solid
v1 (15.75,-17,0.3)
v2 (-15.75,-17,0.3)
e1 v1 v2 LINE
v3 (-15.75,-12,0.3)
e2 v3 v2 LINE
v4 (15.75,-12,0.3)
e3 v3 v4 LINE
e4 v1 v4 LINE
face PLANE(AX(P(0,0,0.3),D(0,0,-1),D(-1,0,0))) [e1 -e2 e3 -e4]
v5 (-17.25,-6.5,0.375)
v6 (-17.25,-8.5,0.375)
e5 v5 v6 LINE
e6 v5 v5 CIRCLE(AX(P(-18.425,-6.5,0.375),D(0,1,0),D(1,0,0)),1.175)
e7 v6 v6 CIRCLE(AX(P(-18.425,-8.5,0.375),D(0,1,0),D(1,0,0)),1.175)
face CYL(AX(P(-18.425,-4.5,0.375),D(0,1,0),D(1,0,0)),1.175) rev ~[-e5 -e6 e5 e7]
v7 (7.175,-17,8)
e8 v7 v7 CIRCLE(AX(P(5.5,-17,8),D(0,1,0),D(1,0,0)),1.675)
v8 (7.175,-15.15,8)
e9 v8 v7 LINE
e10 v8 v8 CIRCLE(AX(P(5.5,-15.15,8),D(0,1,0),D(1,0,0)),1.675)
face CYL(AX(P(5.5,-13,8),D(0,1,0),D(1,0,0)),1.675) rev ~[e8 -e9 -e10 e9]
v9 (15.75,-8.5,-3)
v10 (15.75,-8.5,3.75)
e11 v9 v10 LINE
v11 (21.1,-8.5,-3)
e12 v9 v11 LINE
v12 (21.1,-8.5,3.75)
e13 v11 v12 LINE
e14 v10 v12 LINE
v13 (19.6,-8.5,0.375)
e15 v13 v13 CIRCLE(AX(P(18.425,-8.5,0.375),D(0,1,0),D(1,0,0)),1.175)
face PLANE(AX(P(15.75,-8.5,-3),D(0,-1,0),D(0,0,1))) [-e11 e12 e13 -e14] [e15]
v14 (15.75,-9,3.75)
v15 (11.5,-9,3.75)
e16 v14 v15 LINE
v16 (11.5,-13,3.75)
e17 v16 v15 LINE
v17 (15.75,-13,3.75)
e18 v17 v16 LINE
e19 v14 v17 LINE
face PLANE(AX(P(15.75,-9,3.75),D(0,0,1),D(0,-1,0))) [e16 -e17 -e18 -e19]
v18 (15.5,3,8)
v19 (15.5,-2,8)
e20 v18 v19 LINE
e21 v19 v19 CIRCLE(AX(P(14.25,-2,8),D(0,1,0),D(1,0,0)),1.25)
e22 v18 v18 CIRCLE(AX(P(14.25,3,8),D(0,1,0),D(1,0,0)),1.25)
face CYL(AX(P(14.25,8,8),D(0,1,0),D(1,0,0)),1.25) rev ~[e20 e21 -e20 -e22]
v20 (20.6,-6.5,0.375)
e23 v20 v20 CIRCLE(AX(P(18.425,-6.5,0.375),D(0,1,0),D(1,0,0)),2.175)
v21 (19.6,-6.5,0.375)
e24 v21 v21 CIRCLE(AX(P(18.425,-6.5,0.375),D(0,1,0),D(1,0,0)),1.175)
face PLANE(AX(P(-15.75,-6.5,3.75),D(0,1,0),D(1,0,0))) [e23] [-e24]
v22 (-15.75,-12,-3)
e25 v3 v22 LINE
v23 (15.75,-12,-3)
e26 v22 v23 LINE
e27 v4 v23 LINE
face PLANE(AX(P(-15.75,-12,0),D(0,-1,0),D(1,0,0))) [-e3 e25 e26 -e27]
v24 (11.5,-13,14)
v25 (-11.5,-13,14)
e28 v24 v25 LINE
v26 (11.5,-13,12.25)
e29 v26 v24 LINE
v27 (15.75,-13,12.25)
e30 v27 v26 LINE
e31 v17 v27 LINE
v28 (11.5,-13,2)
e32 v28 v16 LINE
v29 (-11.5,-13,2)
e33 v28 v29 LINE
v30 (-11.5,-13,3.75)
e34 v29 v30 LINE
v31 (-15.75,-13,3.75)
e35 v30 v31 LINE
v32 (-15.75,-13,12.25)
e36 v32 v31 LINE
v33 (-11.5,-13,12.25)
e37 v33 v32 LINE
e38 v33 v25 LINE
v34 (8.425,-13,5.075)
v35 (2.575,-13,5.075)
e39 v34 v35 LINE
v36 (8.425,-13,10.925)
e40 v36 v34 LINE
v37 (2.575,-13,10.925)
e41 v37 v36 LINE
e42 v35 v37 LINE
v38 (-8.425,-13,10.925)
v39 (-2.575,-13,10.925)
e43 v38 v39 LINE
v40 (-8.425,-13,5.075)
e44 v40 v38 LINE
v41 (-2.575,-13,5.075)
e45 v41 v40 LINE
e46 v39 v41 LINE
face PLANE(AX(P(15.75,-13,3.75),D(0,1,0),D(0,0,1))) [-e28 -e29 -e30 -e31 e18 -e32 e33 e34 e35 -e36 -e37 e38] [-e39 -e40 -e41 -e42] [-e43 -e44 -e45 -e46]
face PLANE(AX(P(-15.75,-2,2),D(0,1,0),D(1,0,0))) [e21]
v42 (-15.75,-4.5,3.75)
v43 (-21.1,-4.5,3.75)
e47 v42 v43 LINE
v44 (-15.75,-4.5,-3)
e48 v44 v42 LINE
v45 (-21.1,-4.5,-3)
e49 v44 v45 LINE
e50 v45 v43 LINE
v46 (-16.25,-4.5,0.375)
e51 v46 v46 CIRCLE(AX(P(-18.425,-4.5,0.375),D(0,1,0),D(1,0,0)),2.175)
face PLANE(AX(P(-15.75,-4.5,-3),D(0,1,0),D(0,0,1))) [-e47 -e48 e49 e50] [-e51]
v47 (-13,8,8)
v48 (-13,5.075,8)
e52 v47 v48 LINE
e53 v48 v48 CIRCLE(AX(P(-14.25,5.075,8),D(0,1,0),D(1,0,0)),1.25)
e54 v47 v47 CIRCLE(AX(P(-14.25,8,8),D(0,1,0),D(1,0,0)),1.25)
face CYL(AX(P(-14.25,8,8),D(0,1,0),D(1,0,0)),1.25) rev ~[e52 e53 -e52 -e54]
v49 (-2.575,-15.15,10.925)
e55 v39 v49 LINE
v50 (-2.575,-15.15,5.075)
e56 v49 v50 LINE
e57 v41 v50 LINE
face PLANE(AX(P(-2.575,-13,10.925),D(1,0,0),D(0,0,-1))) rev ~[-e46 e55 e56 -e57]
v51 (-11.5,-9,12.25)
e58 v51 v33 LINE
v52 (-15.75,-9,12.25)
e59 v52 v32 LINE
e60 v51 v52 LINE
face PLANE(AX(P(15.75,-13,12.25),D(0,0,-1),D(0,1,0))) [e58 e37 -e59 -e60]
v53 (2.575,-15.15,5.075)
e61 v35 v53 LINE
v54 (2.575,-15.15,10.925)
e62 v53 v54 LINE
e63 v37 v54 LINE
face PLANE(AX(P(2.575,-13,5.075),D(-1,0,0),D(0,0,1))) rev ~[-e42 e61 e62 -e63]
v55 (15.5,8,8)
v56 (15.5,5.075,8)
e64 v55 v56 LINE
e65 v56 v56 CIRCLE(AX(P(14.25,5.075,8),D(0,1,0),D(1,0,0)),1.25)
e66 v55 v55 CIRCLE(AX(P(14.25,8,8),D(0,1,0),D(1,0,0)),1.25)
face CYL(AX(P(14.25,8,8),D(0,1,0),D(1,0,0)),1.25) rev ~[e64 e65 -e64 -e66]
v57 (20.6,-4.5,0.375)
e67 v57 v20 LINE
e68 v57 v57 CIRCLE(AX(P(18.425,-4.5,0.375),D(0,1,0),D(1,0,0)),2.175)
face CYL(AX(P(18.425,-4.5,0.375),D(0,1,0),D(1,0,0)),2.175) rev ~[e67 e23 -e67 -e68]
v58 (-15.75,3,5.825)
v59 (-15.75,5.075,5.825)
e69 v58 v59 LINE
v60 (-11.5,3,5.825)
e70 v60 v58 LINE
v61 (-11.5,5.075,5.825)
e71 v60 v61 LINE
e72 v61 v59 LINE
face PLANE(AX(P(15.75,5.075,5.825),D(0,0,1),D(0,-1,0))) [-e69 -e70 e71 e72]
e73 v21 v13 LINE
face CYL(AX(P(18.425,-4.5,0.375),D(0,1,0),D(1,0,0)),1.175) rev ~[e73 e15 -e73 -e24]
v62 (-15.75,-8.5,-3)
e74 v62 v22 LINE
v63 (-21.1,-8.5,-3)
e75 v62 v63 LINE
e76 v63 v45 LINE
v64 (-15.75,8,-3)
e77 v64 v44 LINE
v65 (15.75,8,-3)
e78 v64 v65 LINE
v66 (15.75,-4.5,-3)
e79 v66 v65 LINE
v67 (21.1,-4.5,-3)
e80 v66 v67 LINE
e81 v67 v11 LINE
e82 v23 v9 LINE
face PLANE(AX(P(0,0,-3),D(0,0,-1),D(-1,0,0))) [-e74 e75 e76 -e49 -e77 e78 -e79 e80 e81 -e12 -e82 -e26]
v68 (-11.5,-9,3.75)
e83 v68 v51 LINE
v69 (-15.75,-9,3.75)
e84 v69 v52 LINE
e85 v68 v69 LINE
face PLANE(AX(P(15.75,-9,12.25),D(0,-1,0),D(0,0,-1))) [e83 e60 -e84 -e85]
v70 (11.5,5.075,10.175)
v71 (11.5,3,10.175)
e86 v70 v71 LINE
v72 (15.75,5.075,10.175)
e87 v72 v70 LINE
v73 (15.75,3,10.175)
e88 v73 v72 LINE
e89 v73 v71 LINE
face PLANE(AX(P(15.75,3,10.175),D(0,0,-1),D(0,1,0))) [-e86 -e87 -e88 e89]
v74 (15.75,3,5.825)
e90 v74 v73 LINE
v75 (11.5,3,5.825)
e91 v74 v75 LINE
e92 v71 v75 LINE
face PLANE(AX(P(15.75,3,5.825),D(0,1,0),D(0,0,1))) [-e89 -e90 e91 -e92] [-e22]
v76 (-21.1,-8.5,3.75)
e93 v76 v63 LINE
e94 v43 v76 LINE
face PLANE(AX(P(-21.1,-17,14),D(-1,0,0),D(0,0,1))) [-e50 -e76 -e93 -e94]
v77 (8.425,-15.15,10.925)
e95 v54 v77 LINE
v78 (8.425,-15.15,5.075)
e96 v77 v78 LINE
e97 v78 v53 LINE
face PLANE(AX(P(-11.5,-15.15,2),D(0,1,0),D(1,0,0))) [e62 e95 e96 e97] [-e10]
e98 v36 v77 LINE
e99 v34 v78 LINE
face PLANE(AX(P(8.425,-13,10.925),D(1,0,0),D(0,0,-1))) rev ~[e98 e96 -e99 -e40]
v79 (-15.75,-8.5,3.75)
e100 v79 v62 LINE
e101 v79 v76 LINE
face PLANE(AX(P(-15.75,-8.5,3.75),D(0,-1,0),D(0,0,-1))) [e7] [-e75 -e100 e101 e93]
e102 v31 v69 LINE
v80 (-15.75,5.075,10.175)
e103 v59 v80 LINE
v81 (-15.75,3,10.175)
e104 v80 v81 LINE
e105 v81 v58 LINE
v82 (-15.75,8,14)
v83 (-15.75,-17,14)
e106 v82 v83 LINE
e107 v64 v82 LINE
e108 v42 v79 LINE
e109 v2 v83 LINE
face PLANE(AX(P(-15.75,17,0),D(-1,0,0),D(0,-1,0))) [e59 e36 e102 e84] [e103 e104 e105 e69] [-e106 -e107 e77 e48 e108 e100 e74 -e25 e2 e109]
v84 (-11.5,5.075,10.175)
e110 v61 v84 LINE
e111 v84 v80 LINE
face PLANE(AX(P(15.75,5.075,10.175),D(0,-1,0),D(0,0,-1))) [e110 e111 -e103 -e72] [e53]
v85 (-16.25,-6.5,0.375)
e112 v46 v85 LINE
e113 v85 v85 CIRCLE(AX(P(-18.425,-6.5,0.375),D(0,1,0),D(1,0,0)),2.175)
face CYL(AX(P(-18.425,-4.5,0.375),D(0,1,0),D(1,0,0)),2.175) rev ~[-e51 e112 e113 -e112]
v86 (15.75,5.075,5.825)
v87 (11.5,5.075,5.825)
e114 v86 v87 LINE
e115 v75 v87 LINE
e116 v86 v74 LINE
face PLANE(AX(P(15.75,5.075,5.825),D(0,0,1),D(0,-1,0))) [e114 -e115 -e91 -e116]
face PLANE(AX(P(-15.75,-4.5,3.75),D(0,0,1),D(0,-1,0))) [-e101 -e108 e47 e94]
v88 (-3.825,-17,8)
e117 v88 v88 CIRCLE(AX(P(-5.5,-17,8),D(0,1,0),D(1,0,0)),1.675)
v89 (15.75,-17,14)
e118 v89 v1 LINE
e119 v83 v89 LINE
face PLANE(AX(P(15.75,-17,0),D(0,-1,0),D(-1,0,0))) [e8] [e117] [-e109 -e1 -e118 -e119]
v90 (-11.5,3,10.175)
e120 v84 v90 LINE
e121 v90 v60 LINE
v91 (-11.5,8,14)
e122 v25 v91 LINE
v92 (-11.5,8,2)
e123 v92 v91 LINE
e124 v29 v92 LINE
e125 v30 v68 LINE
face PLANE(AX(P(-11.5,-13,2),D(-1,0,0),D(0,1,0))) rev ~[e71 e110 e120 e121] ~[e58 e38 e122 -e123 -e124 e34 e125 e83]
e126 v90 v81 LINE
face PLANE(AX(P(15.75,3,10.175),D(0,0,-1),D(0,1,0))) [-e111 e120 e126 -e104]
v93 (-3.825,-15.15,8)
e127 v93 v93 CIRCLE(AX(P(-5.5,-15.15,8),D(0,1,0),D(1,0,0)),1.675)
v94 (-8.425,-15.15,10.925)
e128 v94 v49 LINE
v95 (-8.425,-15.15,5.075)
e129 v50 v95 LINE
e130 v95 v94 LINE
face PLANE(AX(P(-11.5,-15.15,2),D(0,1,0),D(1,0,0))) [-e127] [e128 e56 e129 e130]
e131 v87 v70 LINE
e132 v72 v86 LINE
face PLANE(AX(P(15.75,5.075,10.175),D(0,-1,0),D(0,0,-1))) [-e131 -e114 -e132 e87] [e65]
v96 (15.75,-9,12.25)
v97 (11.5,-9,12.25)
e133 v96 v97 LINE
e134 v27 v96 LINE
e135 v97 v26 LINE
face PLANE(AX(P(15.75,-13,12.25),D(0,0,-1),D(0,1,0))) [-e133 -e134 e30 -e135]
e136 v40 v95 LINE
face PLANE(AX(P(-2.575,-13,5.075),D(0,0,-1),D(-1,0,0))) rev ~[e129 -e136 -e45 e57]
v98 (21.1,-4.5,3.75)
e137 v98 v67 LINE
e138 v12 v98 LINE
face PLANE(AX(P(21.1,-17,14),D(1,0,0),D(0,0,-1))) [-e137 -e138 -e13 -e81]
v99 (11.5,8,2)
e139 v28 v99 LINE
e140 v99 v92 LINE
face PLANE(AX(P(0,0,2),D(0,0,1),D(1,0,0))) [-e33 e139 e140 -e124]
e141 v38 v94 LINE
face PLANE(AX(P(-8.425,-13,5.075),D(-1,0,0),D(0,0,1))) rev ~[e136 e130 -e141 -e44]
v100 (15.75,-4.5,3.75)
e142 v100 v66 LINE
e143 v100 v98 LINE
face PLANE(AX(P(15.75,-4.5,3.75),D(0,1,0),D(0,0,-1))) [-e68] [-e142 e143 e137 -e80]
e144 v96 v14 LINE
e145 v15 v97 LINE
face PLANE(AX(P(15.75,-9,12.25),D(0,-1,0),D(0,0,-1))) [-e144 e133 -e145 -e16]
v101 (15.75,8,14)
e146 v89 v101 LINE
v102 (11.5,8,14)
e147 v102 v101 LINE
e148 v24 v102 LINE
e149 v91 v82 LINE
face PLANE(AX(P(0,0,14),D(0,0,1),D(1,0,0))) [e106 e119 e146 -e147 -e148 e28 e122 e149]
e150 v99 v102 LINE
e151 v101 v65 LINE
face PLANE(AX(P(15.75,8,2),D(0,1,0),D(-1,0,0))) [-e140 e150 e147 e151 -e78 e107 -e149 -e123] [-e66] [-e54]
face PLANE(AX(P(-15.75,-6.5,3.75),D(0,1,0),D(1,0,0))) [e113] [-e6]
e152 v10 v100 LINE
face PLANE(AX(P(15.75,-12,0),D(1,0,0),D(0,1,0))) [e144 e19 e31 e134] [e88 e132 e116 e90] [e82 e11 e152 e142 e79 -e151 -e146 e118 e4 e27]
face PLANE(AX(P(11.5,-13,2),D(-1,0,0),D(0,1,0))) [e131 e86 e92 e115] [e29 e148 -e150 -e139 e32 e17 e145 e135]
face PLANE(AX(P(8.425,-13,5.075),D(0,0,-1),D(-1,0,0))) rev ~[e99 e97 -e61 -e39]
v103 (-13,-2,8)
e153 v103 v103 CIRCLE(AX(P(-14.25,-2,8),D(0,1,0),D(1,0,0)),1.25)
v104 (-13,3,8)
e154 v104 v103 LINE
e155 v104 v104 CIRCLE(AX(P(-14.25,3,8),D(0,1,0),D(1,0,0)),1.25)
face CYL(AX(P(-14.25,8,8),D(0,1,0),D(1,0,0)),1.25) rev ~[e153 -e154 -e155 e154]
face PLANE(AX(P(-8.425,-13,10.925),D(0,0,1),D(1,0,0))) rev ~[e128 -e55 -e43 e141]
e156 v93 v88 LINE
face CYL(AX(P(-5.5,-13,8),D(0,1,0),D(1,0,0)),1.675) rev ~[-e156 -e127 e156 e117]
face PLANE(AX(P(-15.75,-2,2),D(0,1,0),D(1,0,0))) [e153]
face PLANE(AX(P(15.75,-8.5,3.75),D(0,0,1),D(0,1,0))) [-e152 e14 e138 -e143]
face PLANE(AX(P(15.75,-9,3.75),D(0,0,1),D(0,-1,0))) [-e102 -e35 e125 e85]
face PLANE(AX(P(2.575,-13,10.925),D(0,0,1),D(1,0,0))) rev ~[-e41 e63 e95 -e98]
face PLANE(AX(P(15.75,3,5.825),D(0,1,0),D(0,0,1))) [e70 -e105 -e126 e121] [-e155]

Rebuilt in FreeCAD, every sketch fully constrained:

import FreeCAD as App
import Part
import Sketcher
from FreeCAD import Vector

doc = App.newDocument("Part")
params = doc.addObject("Spreadsheet::Sheet", "Params")
for row, (alias, value) in enumerate([
    ("sketch1_height", "34 mm"),
    ("sketch1_width", "31.5 mm"),
    ("pad1_length", "2 mm"),
    ("sketch2_width", "23 mm"),
    ("sketch2_height", "21 mm"),
    ("sketch2_width2", "31.5 mm"),
    ("pad2_length", "12 mm"),
    ("sketch3_diameter", "3.35 mm"),
    ("sketch4_width", "5.85 mm"),
    ("sketch4_diameter", "3.35 mm"),
    ("pocket2_length", "2.15 mm"),
    ("sketch5_height", "29 mm"),
    ("sketch5_width", "31.5 mm"),
    ("pad3_length", "3 mm"),
    ("sketch6_width", "4 mm"),
    ("sketch6_height", "8.5 mm"),
    ("sketch7_diameter", "2.5 mm"),
    ("pocket4_length", "10 mm"),
    ("sketch8_width", "4 mm"),
    ("sketch8_height", "6.75 mm"),
    ("pad4_length", "5.35 mm"),
    ("sketch9_width", "4 mm"),
    ("sketch9_height", "6.75 mm"),
    ("pad5_length", "5.35 mm"),
    ("sketch10_diameter", "2.35 mm"),
    ("sketch11_diameter", "4.35 mm"),
    ("sketch11_diameter2", "2.35 mm"),
    ("pocket6_length", "2 mm"),
    ("sketch12_height", "4.35 mm"),
    ("sketch13_height", "9 mm"),
    ("sketch13_width", "31.5 mm"),
    ("sketch14_height", "5 mm"),
    ("sketch14_width", "31.5 mm"),
    ("pocket9_length", "0.3 mm"),
], start=1):
    params.set(f"A{row}", alias)
    params.set(f"B{row}", "=" + value)
    params.setAlias(f"B{row}", alias)

body = doc.addObject("PartDesign::Body", "Body")

# Sketch on XY plane
sketch1 = body.newObject("Sketcher::SketchObject", "Sketch")
sketch1.AttachmentSupport = (doc.getObject("XY_Plane"), [""])
sketch1.MapMode = "FlatFace"
sketch1.addGeometry([
    Part.LineSegment(Vector(16, 17, 0), Vector(-16, 17, 0)),
    Part.LineSegment(Vector(-16, 17, 0), Vector(-16, -17, 0)),
    Part.LineSegment(Vector(-16, -17, 0), Vector(16, -17, 0)),
    Part.LineSegment(Vector(16, -17, 0), Vector(16, 17, 0)),
], False)
sketch1.addConstraint([
    Sketcher.Constraint("Coincident", 0, 2, 1, 1),
    Sketcher.Constraint("Coincident", 1, 2, 2, 1),
    Sketcher.Constraint("Coincident", 2, 2, 3, 1),
    Sketcher.Constraint("Coincident", 3, 2, 0, 1),
    Sketcher.Constraint("Horizontal", 0),
    Sketcher.Constraint("Vertical", 1),
    Sketcher.Constraint("Horizontal", 2),
    Sketcher.Constraint("Vertical", 3),
    Sketcher.Constraint("Symmetric", 0, 2, 2, 2, -1, 1),
    Sketcher.Constraint("DistanceY", 1, 2, 1, 1, 34.0),
    Sketcher.Constraint("DistanceX", 0, 2, 0, 1, 31.5),
])
sketch1.setExpression("Constraints[9]", "Params.sketch1_height")
sketch1.setExpression("Constraints[10]", "Params.sketch1_width")
pad1 = body.newObject("PartDesign::Pad", "Pad")
pad1.Profile = sketch1
pad1.setExpression("Length", "Params.pad1_length")

# Sketch on XY plane
sketch2 = body.newObject("Sketcher::SketchObject", "Sketch001")
sketch2.AttachmentSupport = (doc.getObject("XY_Plane"), [""])
sketch2.MapMode = "FlatFace"
sketch2.AttachmentOffset = App.Placement(Vector(0, 0, 2), App.Rotation())
sketch2.addGeometry([
    Part.LineSegment(Vector(-11.5, -13, 0), Vector(-11.5, 8, 0)),  # 0
    Part.LineSegment(Vector(-11.5, 8, 0), Vector(-15.8, 8, 0)),  # 1
    Part.LineSegment(Vector(-15.8, 8, 0), Vector(-15.8, -17, 0)),  # 2
    Part.LineSegment(Vector(-15.8, -17, 0), Vector(15.8, -17, 0)),  # 3
    Part.LineSegment(Vector(15.8, -17, 0), Vector(15.8, 8, 0)),  # 4
    Part.LineSegment(Vector(15.8, 8, 0), Vector(11.5, 8, 0)),  # 5
    Part.LineSegment(Vector(11.5, 8, 0), Vector(11.5, -13, 0)),  # 6
    Part.LineSegment(Vector(11.5, -13, 0), Vector(-11.5, -13, 0)),  # 7
], False)
sketch2.addConstraint([
    Sketcher.Constraint("Coincident", 0, 2, 1, 1),
    Sketcher.Constraint("Coincident", 1, 2, 2, 1),
    Sketcher.Constraint("Coincident", 2, 2, 3, 1),
    Sketcher.Constraint("Coincident", 3, 2, 4, 1),
    Sketcher.Constraint("Coincident", 4, 2, 5, 1),
    Sketcher.Constraint("Coincident", 5, 2, 6, 1),
    Sketcher.Constraint("Coincident", 6, 2, 7, 1),
    Sketcher.Constraint("Coincident", 7, 2, 0, 1),
    Sketcher.Constraint("Vertical", 0),
    Sketcher.Constraint("Horizontal", 1),
    Sketcher.Constraint("Vertical", 2),
    Sketcher.Constraint("Horizontal", 3),
    Sketcher.Constraint("Vertical", 4),
    Sketcher.Constraint("Horizontal", 5),
    Sketcher.Constraint("Vertical", 6),
    Sketcher.Constraint("Horizontal", 7),
    Sketcher.Constraint("Symmetric", 1, 2, 4, 2, -2),
    Sketcher.Constraint("Equal", 1, 5),
    Sketcher.Constraint("DistanceX", 7, 2, 7, 1, 23.0),
    Sketcher.Constraint("DistanceY", 0, 1, 0, 2, 21.0),
    Sketcher.Constraint("DistanceY", 3, 2, 6, 2, 4.0),
    Sketcher.Constraint("DistanceX", 3, 1, 3, 2, 31.5),
    Sketcher.Constraint("DistanceY", -1, 1, 0, 2, 8.0),
])
sketch2.setExpression("Constraints[18]", "Params.sketch2_width")
sketch2.setExpression("Constraints[19]", "Params.sketch2_height")
sketch2.setExpression("Constraints[21]", "Params.sketch2_width2")
pad2 = body.newObject("PartDesign::Pad", "Pad001")
pad2.Profile = sketch2
pad2.setExpression("Length", "Params.pad2_length")

# Sketch on XZ plane
sketch3 = body.newObject("Sketcher::SketchObject", "Sketch002")
sketch3.AttachmentSupport = (doc.getObject("XZ_Plane"), [""])
sketch3.MapMode = "FlatFace"
sketch3.AttachmentOffset = App.Placement(Vector(0, 0, 13), App.Rotation())
sketch3.addGeometry([
    Part.Circle(Vector(-5.5, 8, 0), Vector(0, 0, 1), 1.7),
    Part.Circle(Vector(5.5, 8, 0), Vector(0, 0, 1), 1.7),
], False)
sketch3.addConstraint([
    Sketcher.Constraint("Equal", 0, 1),
    Sketcher.Constraint("Symmetric", 0, 3, 1, 3, -2),
    Sketcher.Constraint("Diameter", 0, 3.35),
    Sketcher.Constraint("DistanceY", -1, 1, 0, 3, 8.0),
    Sketcher.Constraint("DistanceX", 0, 3, 1, 3, 11.0),
])
sketch3.setExpression("Constraints[2]", "Params.sketch3_diameter")
pocket1 = body.newObject("PartDesign::Pocket", "Pocket")
pocket1.Profile = sketch3
pocket1.Type = "ThroughAll"
pocket1.Reversed = True

# Sketch on XZ plane
sketch4 = body.newObject("Sketcher::SketchObject", "Sketch003")
sketch4.AttachmentSupport = (doc.getObject("XZ_Plane"), [""])
sketch4.MapMode = "FlatFace"
sketch4.AttachmentOffset = App.Placement(Vector(0, 0, 13), App.Rotation())
sketch4.addGeometry([
    Part.LineSegment(Vector(-8.4, 5.1, 0), Vector(-8.4, 10.9, 0)),  # 0
    Part.LineSegment(Vector(-8.4, 10.9, 0), Vector(-2.6, 10.9, 0)),  # 1
    Part.LineSegment(Vector(-2.6, 10.9, 0), Vector(-2.6, 5.1, 0)),  # 2
    Part.LineSegment(Vector(-2.6, 5.1, 0), Vector(-8.4, 5.1, 0)),  # 3
    Part.Circle(Vector(-5.5, 8, 0), Vector(0, 0, 1), 1.7),  # 4
    Part.LineSegment(Vector(2.6, 5.1, 0), Vector(2.6, 10.9, 0)),  # 5
    Part.LineSegment(Vector(2.6, 10.9, 0), Vector(8.4, 10.9, 0)),  # 6
    Part.LineSegment(Vector(8.4, 10.9, 0), Vector(8.4, 5.1, 0)),  # 7
    Part.LineSegment(Vector(8.4, 5.1, 0), Vector(2.6, 5.1, 0)),  # 8
    Part.Circle(Vector(5.5, 8, 0), Vector(0, 0, 1), 1.7),  # 9
], False)
sketch4.addConstraint([
    Sketcher.Constraint("Coincident", 0, 2, 1, 1),
    Sketcher.Constraint("Coincident", 1, 2, 2, 1),
    Sketcher.Constraint("Coincident", 2, 2, 3, 1),
    Sketcher.Constraint("Coincident", 3, 2, 0, 1),
    Sketcher.Constraint("Coincident", 5, 2, 6, 1),
    Sketcher.Constraint("Coincident", 6, 2, 7, 1),
    Sketcher.Constraint("Coincident", 7, 2, 8, 1),
    Sketcher.Constraint("Coincident", 8, 2, 5, 1),
    Sketcher.Constraint("Vertical", 0),
    Sketcher.Constraint("Horizontal", 1),
    Sketcher.Constraint("Vertical", 2),
    Sketcher.Constraint("Horizontal", 3),
    Sketcher.Constraint("Vertical", 5),
    Sketcher.Constraint("Horizontal", 6),
    Sketcher.Constraint("Vertical", 7),
    Sketcher.Constraint("Horizontal", 8),
    Sketcher.Constraint("Equal", 4, 9),
    Sketcher.Constraint("Symmetric", 4, 3, 9, 3, -2),
    Sketcher.Constraint("Symmetric", 1, 2, 5, 2, -2),
    Sketcher.Constraint("Symmetric", 3, 2, 7, 2, -2),
    Sketcher.Constraint("Equal", 8, 0),
    Sketcher.Constraint("DistanceX", 1, 1, 1, 2, 5.85),
    Sketcher.Constraint("Diameter", 4, 3.35),
    Sketcher.Constraint("DistanceY", -1, 1, 4, 3, 8.0),
    Sketcher.Constraint("DistanceX", 4, 3, 9, 3, 11.0),
    Sketcher.Constraint("DistanceX", 0, 2, 5, 2, 11.0),
    Sketcher.Constraint("DistanceY", -1, 1, 0, 2, 10.925),
])
sketch4.setExpression("Constraints[21]", "Params.sketch4_width")
sketch4.setExpression("Constraints[22]", "Params.sketch4_diameter")
pocket2 = body.newObject("PartDesign::Pocket", "Pocket001")
pocket2.Profile = sketch4
pocket2.setExpression("Length", "Params.pocket2_length")
pocket2.Reversed = True

# Sketch on XY plane
sketch5 = body.newObject("Sketcher::SketchObject", "Sketch004")
sketch5.AttachmentSupport = (doc.getObject("XY_Plane"), [""])
sketch5.MapMode = "FlatFace"
sketch5.addGeometry([
    Part.LineSegment(Vector(-16, 17, 0), Vector(16, 17, 0)),
    Part.LineSegment(Vector(16, 17, 0), Vector(16, -12, 0)),
    Part.LineSegment(Vector(16, -12, 0), Vector(-16, -12, 0)),
    Part.LineSegment(Vector(-16, -12, 0), Vector(-16, 17, 0)),
], False)
sketch5.addConstraint([
    Sketcher.Constraint("Coincident", 0, 2, 1, 1),
    Sketcher.Constraint("Coincident", 1, 2, 2, 1),
    Sketcher.Constraint("Coincident", 2, 2, 3, 1),
    Sketcher.Constraint("Coincident", 3, 2, 0, 1),
    Sketcher.Constraint("Horizontal", 0),
    Sketcher.Constraint("Vertical", 1),
    Sketcher.Constraint("Horizontal", 2),
    Sketcher.Constraint("Vertical", 3),
    Sketcher.Constraint("DistanceY", 1, 2, 1, 1, 29.0),
    Sketcher.Constraint("DistanceX", 0, 1, 0, 2, 31.5),
    Sketcher.Constraint("DistanceY", -1, 1, 0, 2, 17.0),
    Sketcher.Constraint("DistanceX", -1, 1, 0, 2, 15.75),
])
sketch5.setExpression("Constraints[8]", "Params.sketch5_height")
sketch5.setExpression("Constraints[9]", "Params.sketch5_width")
pad3 = body.newObject("PartDesign::Pad", "Pad002")
pad3.Profile = sketch5
pad3.setExpression("Length", "Params.pad3_length")
pad3.Reversed = True

# Sketch on YZ plane
sketch6 = body.newObject("Sketcher::SketchObject", "Sketch005")
sketch6.AttachmentSupport = (doc.getObject("YZ_Plane"), [""])
sketch6.MapMode = "FlatFace"
sketch6.AttachmentOffset = App.Placement(Vector(0, 0, 15.75), App.Rotation())
sketch6.addGeometry([
    Part.LineSegment(Vector(-9, 3.8, 0), Vector(-9, 12.2, 0)),
    Part.LineSegment(Vector(-9, 12.2, 0), Vector(-13, 12.2, 0)),
    Part.LineSegment(Vector(-13, 12.2, 0), Vector(-13, 3.8, 0)),
    Part.LineSegment(Vector(-13, 3.8, 0), Vector(-9, 3.8, 0)),
], False)
sketch6.addConstraint([
    Sketcher.Constraint("Coincident", 0, 2, 1, 1),
    Sketcher.Constraint("Coincident", 1, 2, 2, 1),
    Sketcher.Constraint("Coincident", 2, 2, 3, 1),
    Sketcher.Constraint("Coincident", 3, 2, 0, 1),
    Sketcher.Constraint("Vertical", 0),
    Sketcher.Constraint("Horizontal", 1),
    Sketcher.Constraint("Vertical", 2),
    Sketcher.Constraint("Horizontal", 3),
    Sketcher.Constraint("DistanceX", 1, 2, 1, 1, 4.0),
    Sketcher.Constraint("DistanceY", 0, 1, 0, 2, 8.5),
    Sketcher.Constraint("DistanceX", 0, 2, -1, 1, 9.0),
    Sketcher.Constraint("DistanceY", -1, 1, 0, 2, 12.25),
])
sketch6.setExpression("Constraints[8]", "Params.sketch6_width")
sketch6.setExpression("Constraints[9]", "Params.sketch6_height")
pocket3 = body.newObject("PartDesign::Pocket", "Pocket002")
pocket3.Profile = sketch6
pocket3.Type = "ThroughAll"

# Sketch on XZ plane
sketch7 = body.newObject("Sketcher::SketchObject", "Sketch006")
sketch7.AttachmentSupport = (doc.getObject("XZ_Plane"), [""])
sketch7.MapMode = "FlatFace"
sketch7.AttachmentOffset = App.Placement(Vector(0, 0, -8), App.Rotation())
sketch7.addGeometry([
    Part.Circle(Vector(-14.2, 8, 0), Vector(0, 0, 1), 1.2),
    Part.Circle(Vector(14.2, 8, 0), Vector(0, 0, 1), 1.2),
], False)
sketch7.addConstraint([
    Sketcher.Constraint("Equal", 0, 1),
    Sketcher.Constraint("Symmetric", 0, 3, 1, 3, -2),
    Sketcher.Constraint("Diameter", 0, 2.5),
    Sketcher.Constraint("DistanceY", -1, 1, 0, 3, 8.0),
    Sketcher.Constraint("DistanceX", 0, 3, 1, 3, 28.5),
])
sketch7.setExpression("Constraints[2]", "Params.sketch7_diameter")
pocket4 = body.newObject("PartDesign::Pocket", "Pocket003")
pocket4.Profile = sketch7
pocket4.setExpression("Length", "Params.pocket4_length")
pocket4.Reversed = True

# Sketch on YZ plane
sketch8 = body.newObject("Sketcher::SketchObject", "Sketch007")
sketch8.AttachmentSupport = (doc.getObject("YZ_Plane"), [""])
sketch8.MapMode = "FlatFace"
sketch8.AttachmentOffset = App.Placement(Vector(0, 0, -15.75), App.Rotation())
sketch8.addGeometry([
    Part.LineSegment(Vector(-4.5, 3.8, 0), Vector(-4.5, -3, 0)),
    Part.LineSegment(Vector(-4.5, -3, 0), Vector(-8.5, -3, 0)),
    Part.LineSegment(Vector(-8.5, -3, 0), Vector(-8.5, 3.8, 0)),
    Part.LineSegment(Vector(-8.5, 3.8, 0), Vector(-4.5, 3.8, 0)),
], False)
sketch8.addConstraint([
    Sketcher.Constraint("Coincident", 0, 2, 1, 1),
    Sketcher.Constraint("Coincident", 1, 2, 2, 1),
    Sketcher.Constraint("Coincident", 2, 2, 3, 1),
    Sketcher.Constraint("Coincident", 3, 2, 0, 1),
    Sketcher.Constraint("Vertical", 0),
    Sketcher.Constraint("Horizontal", 1),
    Sketcher.Constraint("Vertical", 2),
    Sketcher.Constraint("Horizontal", 3),
    Sketcher.Constraint("DistanceX", 1, 2, 1, 1, 4.0),
    Sketcher.Constraint("DistanceX", 1, 2, -1, 1, 8.5),
    Sketcher.Constraint("DistanceY", 0, 2, -1, 1, 3.0),
    Sketcher.Constraint("DistanceY", 0, 2, 0, 1, 6.75),
])
sketch8.setExpression("Constraints[8]", "Params.sketch8_width")
sketch8.setExpression("Constraints[11]", "Params.sketch8_height")
pad4 = body.newObject("PartDesign::Pad", "Pad003")
pad4.Profile = sketch8
pad4.setExpression("Length", "Params.pad4_length")
pad4.Reversed = True

# Sketch on YZ plane
sketch9 = body.newObject("Sketcher::SketchObject", "Sketch008")
sketch9.AttachmentSupport = (doc.getObject("YZ_Plane"), [""])
sketch9.MapMode = "FlatFace"
sketch9.AttachmentOffset = App.Placement(Vector(0, 0, 15.75), App.Rotation())
sketch9.addGeometry([
    Part.LineSegment(Vector(-4.5, -3, 0), Vector(-4.5, 3.8, 0)),
    Part.LineSegment(Vector(-4.5, 3.8, 0), Vector(-8.5, 3.8, 0)),
    Part.LineSegment(Vector(-8.5, 3.8, 0), Vector(-8.5, -3, 0)),
    Part.LineSegment(Vector(-8.5, -3, 0), Vector(-4.5, -3, 0)),
], False)
sketch9.addConstraint([
    Sketcher.Constraint("Coincident", 0, 2, 1, 1),
    Sketcher.Constraint("Coincident", 1, 2, 2, 1),
    Sketcher.Constraint("Coincident", 2, 2, 3, 1),
    Sketcher.Constraint("Coincident", 3, 2, 0, 1),
    Sketcher.Constraint("Vertical", 0),
    Sketcher.Constraint("Horizontal", 1),
    Sketcher.Constraint("Vertical", 2),
    Sketcher.Constraint("Horizontal", 3),
    Sketcher.Constraint("DistanceX", 1, 2, 1, 1, 4.0),
    Sketcher.Constraint("DistanceX", 1, 2, -1, 1, 8.5),
    Sketcher.Constraint("DistanceY", 2, 2, -1, 1, 3.0),
    Sketcher.Constraint("DistanceY", 0, 1, 0, 2, 6.75),
])
sketch9.setExpression("Constraints[8]", "Params.sketch9_width")
sketch9.setExpression("Constraints[11]", "Params.sketch9_height")
pad5 = body.newObject("PartDesign::Pad", "Pad004")
pad5.Profile = sketch9
pad5.setExpression("Length", "Params.pad5_length")

# Sketch on XZ plane
sketch10 = body.newObject("Sketcher::SketchObject", "Sketch009")
sketch10.AttachmentSupport = (doc.getObject("XZ_Plane"), [""])
sketch10.MapMode = "FlatFace"
sketch10.AttachmentOffset = App.Placement(Vector(0, 0, 4.5), App.Rotation())
sketch10.addGeometry([
    Part.Circle(Vector(-18.4, 0.4, 0), Vector(0, 0, 1), 1.2),
    Part.Circle(Vector(18.4, 0.4, 0), Vector(0, 0, 1), 1.2),
], False)
sketch10.addConstraint([
    Sketcher.Constraint("Equal", 0, 1),
    Sketcher.Constraint("Symmetric", 0, 3, 1, 3, -2),
    Sketcher.Constraint("Diameter", 0, 2.35),
    Sketcher.Constraint("DistanceX", 0, 3, 1, 3, 36.85),
    Sketcher.Constraint("DistanceY", -1, 1, 0, 3, 0.375),
])
sketch10.setExpression("Constraints[2]", "Params.sketch10_diameter")
pocket5 = body.newObject("PartDesign::Pocket", "Pocket004")
pocket5.Profile = sketch10
pocket5.Type = "ThroughAll"
pocket5.Reversed = True

# Sketch on XZ plane
sketch11 = body.newObject("Sketcher::SketchObject", "Sketch010")
sketch11.AttachmentSupport = (doc.getObject("XZ_Plane"), [""])
sketch11.MapMode = "FlatFace"
sketch11.AttachmentOffset = App.Placement(Vector(0, 0, 4.5), App.Rotation())
sketch11.addGeometry([
    Part.Circle(Vector(-18.4, 0.4, 0), Vector(0, 0, 1), 2.2),
    Part.Circle(Vector(-18.4, 0.4, 0), Vector(0, 0, 1), 1.2),
    Part.Circle(Vector(18.4, 0.4, 0), Vector(0, 0, 1), 2.2),
    Part.Circle(Vector(18.4, 0.4, 0), Vector(0, 0, 1), 1.2),
], False)
sketch11.addConstraint([
    Sketcher.Constraint("Coincident", 1, 3, 0, 3),
    Sketcher.Constraint("Coincident", 3, 3, 2, 3),
    Sketcher.Constraint("Equal", 0, 2),
    Sketcher.Constraint("Equal", 1, 3),
    Sketcher.Constraint("Symmetric", 0, 3, 2, 3, -2),
    Sketcher.Constraint("Diameter", 0, 4.35),
    Sketcher.Constraint("Diameter", 1, 2.35),
    Sketcher.Constraint("DistanceX", 0, 3, 2, 3, 36.85),
    Sketcher.Constraint("DistanceY", -1, 1, 0, 3, 0.375),
])
sketch11.setExpression("Constraints[5]", "Params.sketch11_diameter")
sketch11.setExpression("Constraints[6]", "Params.sketch11_diameter2")
pocket6 = body.newObject("PartDesign::Pocket", "Pocket005")
pocket6.Profile = sketch11
pocket6.setExpression("Length", "Params.pocket6_length")
pocket6.Reversed = True

# Sketch on YZ plane
sketch12 = body.newObject("Sketcher::SketchObject", "Sketch011")
sketch12.AttachmentSupport = (doc.getObject("YZ_Plane"), [""])
sketch12.MapMode = "FlatFace"
sketch12.AttachmentOffset = App.Placement(Vector(0, 0, 15.75), App.Rotation())
sketch12.addGeometry([
    Part.LineSegment(Vector(5.1, 5.8, 0), Vector(5.1, 10.2, 0)),
    Part.LineSegment(Vector(5.1, 10.2, 0), Vector(3, 10.2, 0)),
    Part.LineSegment(Vector(3, 10.2, 0), Vector(3, 5.8, 0)),
    Part.LineSegment(Vector(3, 5.8, 0), Vector(5.1, 5.8, 0)),
], False)
sketch12.addConstraint([
    Sketcher.Constraint("Coincident", 0, 2, 1, 1),
    Sketcher.Constraint("Coincident", 1, 2, 2, 1),
    Sketcher.Constraint("Coincident", 2, 2, 3, 1),
    Sketcher.Constraint("Coincident", 3, 2, 0, 1),
    Sketcher.Constraint("Vertical", 0),
    Sketcher.Constraint("Horizontal", 1),
    Sketcher.Constraint("Vertical", 2),
    Sketcher.Constraint("Horizontal", 3),
    Sketcher.Constraint("DistanceY", 0, 1, 0, 2, 4.35),
    Sketcher.Constraint("DistanceX", 1, 2, 1, 1, 2.075),
    Sketcher.Constraint("DistanceX", -1, 1, 1, 2, 3.0),
    Sketcher.Constraint("DistanceY", -1, 1, 0, 2, 10.175),
])
sketch12.setExpression("Constraints[8]", "Params.sketch12_height")
pocket7 = body.newObject("PartDesign::Pocket", "Pocket006")
pocket7.Profile = sketch12
pocket7.Type = "ThroughAll"

# Sketch on XY plane
sketch13 = body.newObject("Sketcher::SketchObject", "Sketch012")
sketch13.AttachmentSupport = (doc.getObject("XY_Plane"), [""])
sketch13.MapMode = "FlatFace"
sketch13.AttachmentOffset = App.Placement(Vector(0, 0, 2), App.Rotation())
sketch13.addGeometry([
    Part.LineSegment(Vector(16, 17, 0), Vector(-16, 17, 0)),
    Part.LineSegment(Vector(-16, 17, 0), Vector(-16, 8, 0)),
    Part.LineSegment(Vector(-16, 8, 0), Vector(16, 8, 0)),
    Part.LineSegment(Vector(16, 8, 0), Vector(16, 17, 0)),
], False)
sketch13.addConstraint([
    Sketcher.Constraint("Coincident", 0, 2, 1, 1),
    Sketcher.Constraint("Coincident", 1, 2, 2, 1),
    Sketcher.Constraint("Coincident", 2, 2, 3, 1),
    Sketcher.Constraint("Coincident", 3, 2, 0, 1),
    Sketcher.Constraint("Horizontal", 0),
    Sketcher.Constraint("Vertical", 1),
    Sketcher.Constraint("Horizontal", 2),
    Sketcher.Constraint("Vertical", 3),
    Sketcher.Constraint("DistanceY", 1, 2, 1, 1, 9.0),
    Sketcher.Constraint("DistanceX", 0, 2, 0, 1, 31.5),
    Sketcher.Constraint("DistanceY", -1, 1, 0, 2, 17.0),
    Sketcher.Constraint("DistanceX", 0, 2, -1, 1, 15.75),
])
sketch13.setExpression("Constraints[8]", "Params.sketch13_height")
sketch13.setExpression("Constraints[9]", "Params.sketch13_width")
pocket8 = body.newObject("PartDesign::Pocket", "Pocket007")
pocket8.Profile = sketch13
pocket8.Type = "ThroughAll"

# Sketch on XY plane
sketch14 = body.newObject("Sketcher::SketchObject", "Sketch013")
sketch14.AttachmentSupport = (doc.getObject("XY_Plane"), [""])
sketch14.MapMode = "FlatFace"
sketch14.addGeometry([
    Part.LineSegment(Vector(16, -12, 0), Vector(16, -17, 0)),
    Part.LineSegment(Vector(16, -17, 0), Vector(-16, -17, 0)),
    Part.LineSegment(Vector(-16, -17, 0), Vector(-16, -12, 0)),
    Part.LineSegment(Vector(-16, -12, 0), Vector(16, -12, 0)),
], False)
sketch14.addConstraint([
    Sketcher.Constraint("Coincident", 0, 2, 1, 1),
    Sketcher.Constraint("Coincident", 1, 2, 2, 1),
    Sketcher.Constraint("Coincident", 2, 2, 3, 1),
    Sketcher.Constraint("Coincident", 3, 2, 0, 1),
    Sketcher.Constraint("Vertical", 0),
    Sketcher.Constraint("Horizontal", 1),
    Sketcher.Constraint("Vertical", 2),
    Sketcher.Constraint("Horizontal", 3),
    Sketcher.Constraint("DistanceY", 0, 2, 0, 1, 5.0),
    Sketcher.Constraint("DistanceX", 1, 2, 1, 1, 31.5),
    Sketcher.Constraint("DistanceY", 0, 2, -1, 1, 17.0),
    Sketcher.Constraint("DistanceX", -1, 1, 0, 2, 15.75),
])
sketch14.setExpression("Constraints[8]", "Params.sketch14_height")
sketch14.setExpression("Constraints[9]", "Params.sketch14_width")
pocket9 = body.newObject("PartDesign::Pocket", "Pocket008")
pocket9.Profile = sketch14
pocket9.setExpression("Length", "Params.pocket9_length")
pocket9.Reversed = True

doc.recompute()
